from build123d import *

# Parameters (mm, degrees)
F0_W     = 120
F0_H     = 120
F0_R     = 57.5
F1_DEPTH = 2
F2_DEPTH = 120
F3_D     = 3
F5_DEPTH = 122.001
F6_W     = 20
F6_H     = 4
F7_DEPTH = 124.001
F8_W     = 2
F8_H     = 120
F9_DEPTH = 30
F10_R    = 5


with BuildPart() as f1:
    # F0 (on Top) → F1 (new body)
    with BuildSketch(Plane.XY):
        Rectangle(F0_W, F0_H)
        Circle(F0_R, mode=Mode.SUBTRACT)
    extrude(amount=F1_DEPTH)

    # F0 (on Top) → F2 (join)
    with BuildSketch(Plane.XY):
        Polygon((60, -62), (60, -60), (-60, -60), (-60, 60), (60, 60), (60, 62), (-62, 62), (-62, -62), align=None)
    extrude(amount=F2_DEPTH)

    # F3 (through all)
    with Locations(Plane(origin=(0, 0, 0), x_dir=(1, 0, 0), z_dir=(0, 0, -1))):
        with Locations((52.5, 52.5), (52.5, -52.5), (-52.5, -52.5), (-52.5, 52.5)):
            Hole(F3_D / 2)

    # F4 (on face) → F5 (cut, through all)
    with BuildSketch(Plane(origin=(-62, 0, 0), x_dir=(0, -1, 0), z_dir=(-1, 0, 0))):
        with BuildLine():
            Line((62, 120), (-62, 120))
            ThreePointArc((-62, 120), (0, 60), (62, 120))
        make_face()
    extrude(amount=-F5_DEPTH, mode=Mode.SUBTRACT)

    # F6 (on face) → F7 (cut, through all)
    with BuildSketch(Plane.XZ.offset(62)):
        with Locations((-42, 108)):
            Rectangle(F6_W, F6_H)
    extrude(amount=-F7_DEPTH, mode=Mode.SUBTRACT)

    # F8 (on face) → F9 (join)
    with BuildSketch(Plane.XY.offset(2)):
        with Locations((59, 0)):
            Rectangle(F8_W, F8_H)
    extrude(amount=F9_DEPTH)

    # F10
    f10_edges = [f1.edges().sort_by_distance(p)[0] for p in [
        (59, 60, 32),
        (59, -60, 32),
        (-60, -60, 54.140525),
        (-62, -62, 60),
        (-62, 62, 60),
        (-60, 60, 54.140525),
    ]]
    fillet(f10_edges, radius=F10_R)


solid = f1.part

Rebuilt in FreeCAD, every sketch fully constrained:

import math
import FreeCAD as App
import Part
import Sketcher
from FreeCAD import Vector


def edges_at(feature, points):
    """Names of the edges that pass closest to the given points."""
    edges = feature.Shape.Edges
    near = lambda p: min(range(len(edges)), key=lambda i: edges[i].distToShape(Part.Vertex(*p))[0])
    return sorted({f"Edge{near(p) + 1}" for p in points})

doc = App.newDocument("Part")
params = doc.addObject("Spreadsheet::Sheet", "Params")
for row, (alias, value) in enumerate([
    ("sketch1_diameter", "115 mm"),
    ("sketch1_width", "120 mm"),
    ("pad1_length", "2 mm"),
    ("sketch2_width", "120 mm"),
    ("sketch2_width2", "122 mm"),
    ("sketch2_height", "2 mm"),
    ("pad2_length", "120 mm"),
    ("sketch3_diameter", "3 mm"),
    ("hole_diameter", "3 mm"),
    ("sketch4_width", "124 mm"),
    ("sketch5_width", "20 mm"),
    ("sketch5_height", "4 mm"),
    ("sketch6_width", "2 mm"),
    ("sketch6_height", "120 mm"),
    ("pad3_length", "30 mm"),
    ("fillet_radius", "5 mm"),
], start=1):
    params.set(f"A{row}", alias)
    params.set(f"B{row}", "=" + value)
    params.setAlias(f"B{row}", alias)

body = doc.addObject("PartDesign::Body", "Body")

# Sketch on XY plane
sketch1 = body.newObject("Sketcher::SketchObject", "Sketch")
sketch1.AttachmentSupport = (doc.getObject("XY_Plane"), [""])
sketch1.MapMode = "FlatFace"
sketch1.addGeometry(Part.LineSegment(Vector(-60, 60, 0), Vector(-60, -60, 0)), False)
sketch1.addGeometry(Part.LineSegment(Vector(-60, -60, 0), Vector(60, -60, 0)), False)
sketch1.addGeometry(Part.LineSegment(Vector(60, -60, 0), Vector(60, 60, 0)), False)
sketch1.addGeometry(Part.LineSegment(Vector(60, 60, 0), Vector(-60, 60, 0)), False)
sketch1.addGeometry(Part.Circle(Vector(0, 0, 0), Vector(0, 0, 1), 58), False)
sketch1.addConstraint(Sketcher.Constraint("Coincident", 0, 2, 1, 1))
sketch1.addConstraint(Sketcher.Constraint("Coincident", 1, 2, 2, 1))
sketch1.addConstraint(Sketcher.Constraint("Coincident", 2, 2, 3, 1))
sketch1.addConstraint(Sketcher.Constraint("Coincident", 3, 2, 0, 1))
sketch1.addConstraint(Sketcher.Constraint("Vertical", 0))
sketch1.addConstraint(Sketcher.Constraint("Horizontal", 1))
sketch1.addConstraint(Sketcher.Constraint("Vertical", 2))
sketch1.addConstraint(Sketcher.Constraint("Horizontal", 3))
sketch1.addConstraint(Sketcher.Constraint("Coincident", 4, 3, -1, 1))
sketch1.addConstraint(Sketcher.Constraint("Symmetric", 0, 2, 2, 2, -1, 1))
sketch1.addConstraint(Sketcher.Constraint("Equal", 3, 0))
sketch1.addConstraint(Sketcher.Constraint("Diameter", 4, 115.0))
sketch1.addConstraint(Sketcher.Constraint("DistanceX", 1, 1, 1, 2, 120.0))
sketch1.setExpression("Constraints[11]", "Params.sketch1_diameter")
sketch1.setExpression("Constraints[12]", "Params.sketch1_width")
pad1 = body.newObject("PartDesign::Pad", "Pad")
pad1.Profile = sketch1
pad1.setExpression("Length", "Params.pad1_length")

# Sketch on XY plane
sketch2 = body.newObject("Sketcher::SketchObject", "Sketch001")
sketch2.AttachmentSupport = (doc.getObject("XY_Plane"), [""])
sketch2.MapMode = "FlatFace"
sketch2.addGeometry(Part.LineSegment(Vector(60, -62, 0), Vector(60, -60, 0)), False)
sketch2.addGeometry(Part.LineSegment(Vector(60, -60, 0), Vector(-60, -60, 0)), False)
sketch2.addGeometry(Part.LineSegment(Vector(-60, -60, 0), Vector(-60, 60, 0)), False)
sketch2.addGeometry(Part.LineSegment(Vector(-60, 60, 0), Vector(60, 60, 0)), False)
sketch2.addGeometry(Part.LineSegment(Vector(60, 60, 0), Vector(60, 62, 0)), False)
sketch2.addGeometry(Part.LineSegment(Vector(60, 62, 0), Vector(-62, 62, 0)), False)
sketch2.addGeometry(Part.LineSegment(Vector(-62, 62, 0), Vector(-62, -62, 0)), False)
sketch2.addGeometry(Part.LineSegment(Vector(-62, -62, 0), Vector(60, -62, 0)), False)
sketch2.addConstraint(Sketcher.Constraint("Coincident", 0, 2, 1, 1))
sketch2.addConstraint(Sketcher.Constraint("Coincident", 1, 2, 2, 1))
sketch2.addConstraint(Sketcher.Constraint("Coincident", 2, 2, 3, 1))
sketch2.addConstraint(Sketcher.Constraint("Coincident", 3, 2, 4, 1))
sketch2.addConstraint(Sketcher.Constraint("Coincident", 4, 2, 5, 1))
sketch2.addConstraint(Sketcher.Constraint("Coincident", 5, 2, 6, 1))
sketch2.addConstraint(Sketcher.Constraint("Coincident", 6, 2, 7, 1))
sketch2.addConstraint(Sketcher.Constraint("Coincident", 7, 2, 0, 1))
sketch2.addConstraint(Sketcher.Constraint("Vertical", 0))
sketch2.addConstraint(Sketcher.Constraint("Horizontal", 1))
sketch2.addConstraint(Sketcher.Constraint("Vertical", 2))
sketch2.addConstraint(Sketcher.Constraint("Horizontal", 3))
sketch2.addConstraint(Sketcher.Constraint("Vertical", 4))
sketch2.addConstraint(Sketcher.Constraint("Horizontal", 5))
sketch2.addConstraint(Sketcher.Constraint("Vertical", 6))
sketch2.addConstraint(Sketcher.Constraint("Horizontal", 7))
sketch2.addConstraint(Sketcher.Constraint("Symmetric", 0, 2, 2, 2, -1, 1))
sketch2.addConstraint(Sketcher.Constraint("Symmetric", 4, 2, 7, 2, -1))
sketch2.addConstraint(Sketcher.Constraint("Equal", 3, 2))
sketch2.addConstraint(Sketcher.Constraint("DistanceX", 1, 2, 1, 1, 120.0))
sketch2.addConstraint(Sketcher.Constraint("DistanceX", 5, 2, 5, 1, 122.0))
sketch2.addConstraint(Sketcher.Constraint("DistanceY", 0, 1, 0, 2, 2.0))
sketch2.setExpression("Constraints[19]", "Params.sketch2_width")
sketch2.setExpression("Constraints[20]", "Params.sketch2_width2")
sketch2.setExpression("Constraints[21]", "Params.sketch2_height")
pad2 = body.newObject("PartDesign::Pad", "Pad001")
pad2.Profile = sketch2
pad2.setExpression("Length", "Params.pad2_length")

# Sketch on XY plane
sketch3 = body.newObject("Sketcher::SketchObject", "Sketch002")
sketch3.AttachmentSupport = (doc.getObject("XY_Plane"), [""])
sketch3.MapMode = "FlatFace"
sketch3.addGeometry(Part.Circle(Vector(52.5, -52.5, 0), Vector(0, 0, 1), 1.5), False)
sketch3.addGeometry(Part.Circle(Vector(52.5, 52.5, 0), Vector(0, 0, 1), 1.5), False)
sketch3.addGeometry(Part.Circle(Vector(-52.5, 52.5, 0), Vector(0, 0, 1), 1.5), False)
sketch3.addGeometry(Part.Circle(Vector(-52.5, -52.5, 0), Vector(0, 0, 1), 1.5), False)
sketch3.addConstraint(Sketcher.Constraint("Equal", 0, 1))
sketch3.addConstraint(Sketcher.Constraint("Equal", 1, 2))
sketch3.addConstraint(Sketcher.Constraint("Equal", 2, 3))
sketch3.addConstraint(Sketcher.Constraint("Symmetric", 0, 3, 2, 3, -1, 1))
sketch3.addConstraint(Sketcher.Constraint("Symmetric", 1, 3, 3, 3, -1, 1))
sketch3.addConstraint(Sketcher.Constraint("Symmetric", 1, 3, 2, 3, -2))
sketch3.addConstraint(Sketcher.Constraint("Diameter", 0, 3.0))
sketch3.addConstraint(Sketcher.Constraint("DistanceY", 0, 3, 1, 3, 105.0))
sketch3.addConstraint(Sketcher.Constraint("DistanceX", 2, 3, 1, 3, 105.0))
sketch3.setExpression("Constraints[6]", "Params.sketch3_diameter")
doc.recompute()
hole = body.newObject("PartDesign::Hole", "Hole")
hole.Profile = sketch3
hole.ThreadType = "None"
hole.setExpression("Diameter", "Params.hole_diameter")
hole.DepthType = "ThroughAll"
hole.Reversed = True

# Sketch on YZ plane
sketch4 = body.newObject("Sketcher::SketchObject", "Sketch003")
sketch4.AttachmentSupport = (doc.getObject("YZ_Plane"), [""])
sketch4.MapMode = "FlatFace"
sketch4.AttachmentOffset = App.Placement(Vector(0, 0, -62), App.Rotation())
sketch4.addGeometry(Part.LineSegment(Vector(-62, 120, 0), Vector(62, 120, 0)), False)
sketch4.addGeometry(Part.ArcOfCircle(Part.Circle(Vector(0, 122, 0), Vector(0, 0, 1), 62), math.radians(-178), math.radians(-2)), False)
sketch4.addConstraint(Sketcher.Constraint("Coincident", 0, 1, 1, 1))
sketch4.addConstraint(Sketcher.Constraint("Coincident", 1, 2, 0, 2))
sketch4.addConstraint(Sketcher.Constraint("Horizontal", 0))
sketch4.addConstraint(Sketcher.Constraint("PointOnObject", 1, 3, -2))
sketch4.addConstraint(Sketcher.Constraint("DistanceX", 0, 1, 0, 2, 124.0))
sketch4.addConstraint(Sketcher.Constraint("DistanceY", -1, 1, 0, 1, 120.0))
sketch4.addConstraint(Sketcher.Constraint("Radius", 1, 62.033333))
sketch4.setExpression("Constraints[4]", "Params.sketch4_width")
pocket1 = body.newObject("PartDesign::Pocket", "Pocket")
pocket1.Profile = sketch4
pocket1.Type = "ThroughAll"
pocket1.Reversed = True

# Sketch on XZ plane
sketch5 = body.newObject("Sketcher::SketchObject", "Sketch004")
sketch5.AttachmentSupport = (doc.getObject("XZ_Plane"), [""])
sketch5.MapMode = "FlatFace"
sketch5.AttachmentOffset = App.Placement(Vector(0, 0, 62), App.Rotation())
sketch5.addGeometry(Part.LineSegment(Vector(-52, 110, 0), Vector(-52, 106, 0)), False)
sketch5.addGeometry(Part.LineSegment(Vector(-52, 106, 0), Vector(-32, 106, 0)), False)
sketch5.addGeometry(Part.LineSegment(Vector(-32, 106, 0), Vector(-32, 110, 0)), False)
sketch5.addGeometry(Part.LineSegment(Vector(-32, 110, 0), Vector(-52, 110, 0)), False)
sketch5.addConstraint(Sketcher.Constraint("Coincident", 0, 2, 1, 1))
sketch5.addConstraint(Sketcher.Constraint("Coincident", 1, 2, 2, 1))
sketch5.addConstraint(Sketcher.Constraint("Coincident", 2, 2, 3, 1))
sketch5.addConstraint(Sketcher.Constraint("Coincident", 3, 2, 0, 1))
sketch5.addConstraint(Sketcher.Constraint("Vertical", 0))
sketch5.addConstraint(Sketcher.Constraint("Horizontal", 1))
sketch5.addConstraint(Sketcher.Constraint("Vertical", 2))
sketch5.addConstraint(Sketcher.Constraint("Horizontal", 3))
sketch5.addConstraint(Sketcher.Constraint("DistanceX", 1, 1, 1, 2, 20.0))
sketch5.addConstraint(Sketcher.Constraint("DistanceY", 0, 2, 0, 1, 4.0))
sketch5.addConstraint(Sketcher.Constraint("DistanceX", 0, 2, -1, 1, 52.0))
sketch5.addConstraint(Sketcher.Constraint("DistanceY", -1, 1, 0, 2, 106.0))
sketch5.setExpression("Constraints[8]", "Params.sketch5_width")
sketch5.setExpression("Constraints[9]", "Params.sketch5_height")
pocket2 = body.newObject("PartDesign::Pocket", "Pocket001")
pocket2.Profile = sketch5
pocket2.Type = "ThroughAll"

# Sketch on XY plane
sketch6 = body.newObject("Sketcher::SketchObject", "Sketch005")
sketch6.AttachmentSupport = (doc.getObject("XY_Plane"), [""])
sketch6.MapMode = "FlatFace"
sketch6.AttachmentOffset = App.Placement(Vector(0, 0, 2), App.Rotation())
sketch6.addGeometry(Part.LineSegment(Vector(58, 60, 0), Vector(58, -60, 0)), False)
sketch6.addGeometry(Part.LineSegment(Vector(58, -60, 0), Vector(60, -60, 0)), False)
sketch6.addGeometry(Part.LineSegment(Vector(60, -60, 0), Vector(60, 60, 0)), False)
sketch6.addGeometry(Part.LineSegment(Vector(60, 60, 0), Vector(58, 60, 0)), False)
sketch6.addConstraint(Sketcher.Constraint("Coincident", 0, 2, 1, 1))
sketch6.addConstraint(Sketcher.Constraint("Coincident", 1, 2, 2, 1))
sketch6.addConstraint(Sketcher.Constraint("Coincident", 2, 2, 3, 1))
sketch6.addConstraint(Sketcher.Constraint("Coincident", 3, 2, 0, 1))
sketch6.addConstraint(Sketcher.Constraint("Vertical", 0))
sketch6.addConstraint(Sketcher.Constraint("Horizontal", 1))
sketch6.addConstraint(Sketcher.Constraint("Vertical", 2))
sketch6.addConstraint(Sketcher.Constraint("Horizontal", 3))
sketch6.addConstraint(Sketcher.Constraint("DistanceX", 1, 1, 1, 2, 2.0))
sketch6.addConstraint(Sketcher.Constraint("DistanceY", 0, 2, 0, 1, 120.0))
sketch6.addConstraint(Sketcher.Constraint("DistanceX", -1, 1, 0, 2, 58.0))
sketch6.addConstraint(Sketcher.Constraint("DistanceY", 0, 2, -1, 1, 60.0))
sketch6.setExpression("Constraints[8]", "Params.sketch6_width")
sketch6.setExpression("Constraints[9]", "Params.sketch6_height")
pad3 = body.newObject("PartDesign::Pad", "Pad002")
pad3.Profile = sketch6
pad3.setExpression("Length", "Params.pad3_length")
doc.recompute()

fillet = body.newObject("PartDesign::Fillet", "Fillet")
fillet.Base = (pad3, edges_at(pad3, [
    (59, 60, 32),
    (59, -60, 32),
    (-60, -60, 54.141),
    (-62, -62, 60),
    (-62, 62, 60),
    (-60, 60, 54.141),
]))
fillet.setExpression("Radius", "Params.fillet_radius")

doc.recompute()
